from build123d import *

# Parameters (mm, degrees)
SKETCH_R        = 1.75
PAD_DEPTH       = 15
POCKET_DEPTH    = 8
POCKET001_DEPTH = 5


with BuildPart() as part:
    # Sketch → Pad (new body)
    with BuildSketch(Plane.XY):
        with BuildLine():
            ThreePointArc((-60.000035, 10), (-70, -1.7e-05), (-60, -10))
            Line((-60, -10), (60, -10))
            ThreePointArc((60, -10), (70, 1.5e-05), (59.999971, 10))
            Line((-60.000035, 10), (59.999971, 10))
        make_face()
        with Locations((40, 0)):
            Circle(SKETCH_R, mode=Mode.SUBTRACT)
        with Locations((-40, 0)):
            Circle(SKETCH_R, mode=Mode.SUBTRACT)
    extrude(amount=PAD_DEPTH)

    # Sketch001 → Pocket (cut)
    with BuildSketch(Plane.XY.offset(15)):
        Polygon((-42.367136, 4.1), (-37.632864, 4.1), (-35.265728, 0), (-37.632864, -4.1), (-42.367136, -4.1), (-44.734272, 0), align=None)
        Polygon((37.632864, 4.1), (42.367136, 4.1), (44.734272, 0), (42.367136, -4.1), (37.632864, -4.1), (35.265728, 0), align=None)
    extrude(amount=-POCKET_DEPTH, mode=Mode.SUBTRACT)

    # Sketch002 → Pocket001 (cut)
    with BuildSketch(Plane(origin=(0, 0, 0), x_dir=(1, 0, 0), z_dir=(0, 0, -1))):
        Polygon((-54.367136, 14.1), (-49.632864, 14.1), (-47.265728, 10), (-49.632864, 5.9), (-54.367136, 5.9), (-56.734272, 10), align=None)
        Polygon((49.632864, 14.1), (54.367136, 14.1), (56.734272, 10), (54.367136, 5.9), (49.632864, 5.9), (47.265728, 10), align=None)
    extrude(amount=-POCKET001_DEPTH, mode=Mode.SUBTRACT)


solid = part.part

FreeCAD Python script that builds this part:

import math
import FreeCAD as App
import Part
import Sketcher

V = App.Vector
Q = App.Units.Quantity


def add_polygon(sketch, points):
    """Adds a closed chain of lines whose ends are joined by coincident constraints."""
    first, n = sketch.GeometryCount, len(points)
    for a, b in zip(points, points[1:] + points[:1]):
        sketch.addGeometry(Part.LineSegment(App.Vector(*a, 0), App.Vector(*b, 0)), False)
    for i in range(n):
        sketch.addConstraint(Sketcher.Constraint("Coincident", first + i, 2, first + (i + 1) % n, 1))

doc = App.newDocument("Part")
params = doc.addObject("Spreadsheet::Sheet", "Params")
for row, (alias, value) in enumerate([
    ("sketch1_radius", "10 mm"),
    ("sketch1_diameter", "3.5 mm"),
    ("sketch1_width", "120 mm"),
    ("pad1_length", "15 mm"),
    ("pocket1_length", "8 mm"),
    ("pocket2_length", "5 mm"),
], start=1):
    params.set(f"A{row}", alias)
    params.set(f"B{row}", "=" + value)
    params.setAlias(f"B{row}", alias)

body = doc.addObject("PartDesign::Body", "Body")

# Sketch on XY plane
sketch1 = body.newObject("Sketcher::SketchObject", "Sketch")
sketch1.AttachmentSupport = (doc.getObject("XY_Plane"), [""])
sketch1.MapMode = "FlatFace"
sketch1.addGeometry(Part.ArcOfCircle(Part.Circle(V(-60, 0, 0), V(0, 0, 1), 10), math.radians(90.000201), math.radians(270)), False)
sketch1.addGeometry(Part.LineSegment(V(-60, -10, 0), V(60, -10, 0)), False)
sketch1.addGeometry(Part.ArcOfCircle(Part.Circle(V(60, 0, 0), V(0, 0, 1), 10), math.radians(-90), math.radians(90.000166)), False)
sketch1.addGeometry(Part.LineSegment(V(59.999971, 10, 0), V(-60.000035, 10, 0)), False)
sketch1.addGeometry(Part.Circle(V(-40, 0, 0), V(0, 0, 1), 1.75), False)
sketch1.addGeometry(Part.Circle(V(40, 0, 0), V(0, 0, 1), 1.75), False)
sketch1.addConstraint(Sketcher.Constraint("Tangent", 0, 2, 1, 1))
sketch1.addConstraint(Sketcher.Constraint("Tangent", 1, 2, 2, 1))
sketch1.addConstraint(Sketcher.Constraint("Coincident", 2, 2, 3, 1))
sketch1.addConstraint(Sketcher.Constraint("Coincident", 3, 2, 0, 1))
sketch1.addConstraint(Sketcher.Constraint("Horizontal", 1))
sketch1.addConstraint(Sketcher.Constraint("Horizontal", 3))
sketch1.addConstraint(Sketcher.Constraint("Equal", 4, 5))
sketch1.addConstraint(Sketcher.Constraint("Symmetric", 0, 3, 2, 3, -1, 1))
sketch1.addConstraint(Sketcher.Constraint("Symmetric", 4, 3, 5, 3, -1, 1))
sketch1.addConstraint(Sketcher.Constraint("PointOnObject", 4, 3, -1))
sketch1.addConstraint(Sketcher.Constraint("Radius", 0, 10.0))
sketch1.addConstraint(Sketcher.Constraint("Diameter", 4, 3.5))
sketch1.addConstraint(Sketcher.Constraint("DistanceX", 1, 1, 1, 2, 120.0))
sketch1.addConstraint(Sketcher.Constraint("DistanceX", 4, 3, -1, 1, 40.0))
sketch1.addConstraint(Sketcher.Constraint("DistanceX", 3, 2, 3, 1, 120.000006))
sketch1.addConstraint(Sketcher.Constraint("DistanceX", -1, 1, 2, 2, 59.999971))
sketch1.setExpression("Constraints[10]", "Params.sketch1_radius")
sketch1.setExpression("Constraints[11]", "Params.sketch1_diameter")
sketch1.setExpression("Constraints[12]", "Params.sketch1_width")
pad1 = body.newObject("PartDesign::Pad", "Pad")
pad1.Profile = sketch1
pad1.setExpression("Length", "Params.pad1_length")

# Sketch on XY plane
sketch2 = body.newObject("Sketcher::SketchObject", "Sketch001")
sketch2.AttachmentSupport = (doc.getObject("XY_Plane"), [""])
sketch2.MapMode = "FlatFace"
sketch2.AttachmentOffset = App.Placement(V(0, 0, 15), App.Rotation())
add_polygon(sketch2, [(-37.632864, 4.1), (-42.367136, 4.1), (-44.734272, 0), (-42.367136, -4.1), (-37.632864, -4.1), (-35.265728, 0)])  # lines 0-5
add_polygon(sketch2, [(42.367136, 4.1), (37.632864, 4.1), (35.265728, 0), (37.632864, -4.1), (42.367136, -4.1), (44.734272, 0)])  # lines 6-11
sketch2.addConstraint(Sketcher.Constraint("Horizontal", 0))
sketch2.addConstraint(Sketcher.Constraint("Horizontal", 3))
sketch2.addConstraint(Sketcher.Constraint("Horizontal", 6))
sketch2.addConstraint(Sketcher.Constraint("Horizontal", 9))
sketch2.addConstraint(Sketcher.Constraint("Symmetric", 3, 2, 6, 2, -1, 1))
sketch2.addConstraint(Sketcher.Constraint("Symmetric", 4, 2, 7, 2, -1, 1))
sketch2.addConstraint(Sketcher.Constraint("Symmetric", 5, 2, 8, 2, -1, 1))
sketch2.addConstraint(Sketcher.Constraint("Symmetric", 1, 2, 10, 2, -1, 1))
sketch2.addConstraint(Sketcher.Constraint("Symmetric", 5, 2, 6, 2, -2))
sketch2.addConstraint(Sketcher.Constraint("PointOnObject", 1, 2, -1))
sketch2.addConstraint(Sketcher.Constraint("PointOnObject", 4, 2, -1))
sketch2.addConstraint(Sketcher.Constraint("Parallel", 1, 4))
sketch2.addConstraint(Sketcher.Constraint("Parallel", 2, 5))
sketch2.addConstraint(Sketcher.Constraint("Parallel", 7, 10))
sketch2.addConstraint(Sketcher.Constraint("Parallel", 8, 11))
sketch2.addConstraint(Sketcher.Constraint("Angle", 1, Q("-119.999999 deg")))
sketch2.addConstraint(Sketcher.Constraint("DistanceX", 0, 2, 6, 2, 80.0))
sketch2.addConstraint(Sketcher.Constraint("DistanceY", -1, 1, 0, 2, 4.1))
sketch2.addConstraint(Sketcher.Constraint("DistanceX", 0, 2, 0, 1, 4.734272))
pocket1 = body.newObject("PartDesign::Pocket", "Pocket")
pocket1.Profile = sketch2
pocket1.setExpression("Length", "Params.pocket1_length")

# Sketch on XY plane
sketch3 = body.newObject("Sketcher::SketchObject", "Sketch002")
sketch3.AttachmentSupport = (doc.getObject("XY_Plane"), [""])
sketch3.MapMode = "FlatFace"
add_polygon(sketch3, [(-49.632864, -14.1), (-54.367136, -14.1), (-56.734272, -10), (-54.367136, -5.9), (-49.632864, -5.9), (-47.265728, -10)])  # lines 0-5
add_polygon(sketch3, [(54.367136, -14.1), (49.632864, -14.1), (47.265728, -10), (49.632864, -5.9), (54.367136, -5.9), (56.734272, -10)])  # lines 6-11
sketch3.addConstraint(Sketcher.Constraint("Horizontal", 0))
sketch3.addConstraint(Sketcher.Constraint("Horizontal", 3))
sketch3.addConstraint(Sketcher.Constraint("Horizontal", 6))
sketch3.addConstraint(Sketcher.Constraint("Horizontal", 9))
sketch3.addConstraint(Sketcher.Constraint("Symmetric", 5, 2, 6, 2, -2))
sketch3.addConstraint(Sketcher.Constraint("Symmetric", 4, 2, 7, 2, -2))
sketch3.addConstraint(Sketcher.Constraint("Symmetric", 3, 2, 8, 2, -2))
sketch3.addConstraint(Sketcher.Constraint("Symmetric", 1, 2, 10, 2, -2))
sketch3.addConstraint(Sketcher.Constraint("Parallel", 1, 4))
sketch3.addConstraint(Sketcher.Constraint("Parallel", 2, 5))
sketch3.addConstraint(Sketcher.Constraint("Parallel", 4, 7))
sketch3.addConstraint(Sketcher.Constraint("Parallel", 7, 10))
sketch3.addConstraint(Sketcher.Constraint("Parallel", 8, 11))
sketch3.addConstraint(Sketcher.Constraint("Horizontal", 1, 2, 4, 2))
sketch3.addConstraint(Sketcher.Constraint("Vertical", 0, 2, 2, 2))
sketch3.addConstraint(Sketcher.Constraint("Angle", 1, Q("119.999999 deg")))
sketch3.addConstraint(Sketcher.Constraint("DistanceY", 1, 2, -1, 1, 10.0))
sketch3.addConstraint(Sketcher.Constraint("DistanceX", 0, 2, 6, 2, 104.0))
sketch3.addConstraint(Sketcher.Constraint("DistanceY", 0, 2, -1, 1, 14.1))
sketch3.addConstraint(Sketcher.Constraint("DistanceX", 0, 2, 0, 1, 4.734272))
pocket2 = body.newObject("PartDesign::Pocket", "Pocket001")
pocket2.Profile = sketch3
pocket2.setExpression("Length", "Params.pocket2_length")
pocket2.Reversed = True

doc.recompute()
